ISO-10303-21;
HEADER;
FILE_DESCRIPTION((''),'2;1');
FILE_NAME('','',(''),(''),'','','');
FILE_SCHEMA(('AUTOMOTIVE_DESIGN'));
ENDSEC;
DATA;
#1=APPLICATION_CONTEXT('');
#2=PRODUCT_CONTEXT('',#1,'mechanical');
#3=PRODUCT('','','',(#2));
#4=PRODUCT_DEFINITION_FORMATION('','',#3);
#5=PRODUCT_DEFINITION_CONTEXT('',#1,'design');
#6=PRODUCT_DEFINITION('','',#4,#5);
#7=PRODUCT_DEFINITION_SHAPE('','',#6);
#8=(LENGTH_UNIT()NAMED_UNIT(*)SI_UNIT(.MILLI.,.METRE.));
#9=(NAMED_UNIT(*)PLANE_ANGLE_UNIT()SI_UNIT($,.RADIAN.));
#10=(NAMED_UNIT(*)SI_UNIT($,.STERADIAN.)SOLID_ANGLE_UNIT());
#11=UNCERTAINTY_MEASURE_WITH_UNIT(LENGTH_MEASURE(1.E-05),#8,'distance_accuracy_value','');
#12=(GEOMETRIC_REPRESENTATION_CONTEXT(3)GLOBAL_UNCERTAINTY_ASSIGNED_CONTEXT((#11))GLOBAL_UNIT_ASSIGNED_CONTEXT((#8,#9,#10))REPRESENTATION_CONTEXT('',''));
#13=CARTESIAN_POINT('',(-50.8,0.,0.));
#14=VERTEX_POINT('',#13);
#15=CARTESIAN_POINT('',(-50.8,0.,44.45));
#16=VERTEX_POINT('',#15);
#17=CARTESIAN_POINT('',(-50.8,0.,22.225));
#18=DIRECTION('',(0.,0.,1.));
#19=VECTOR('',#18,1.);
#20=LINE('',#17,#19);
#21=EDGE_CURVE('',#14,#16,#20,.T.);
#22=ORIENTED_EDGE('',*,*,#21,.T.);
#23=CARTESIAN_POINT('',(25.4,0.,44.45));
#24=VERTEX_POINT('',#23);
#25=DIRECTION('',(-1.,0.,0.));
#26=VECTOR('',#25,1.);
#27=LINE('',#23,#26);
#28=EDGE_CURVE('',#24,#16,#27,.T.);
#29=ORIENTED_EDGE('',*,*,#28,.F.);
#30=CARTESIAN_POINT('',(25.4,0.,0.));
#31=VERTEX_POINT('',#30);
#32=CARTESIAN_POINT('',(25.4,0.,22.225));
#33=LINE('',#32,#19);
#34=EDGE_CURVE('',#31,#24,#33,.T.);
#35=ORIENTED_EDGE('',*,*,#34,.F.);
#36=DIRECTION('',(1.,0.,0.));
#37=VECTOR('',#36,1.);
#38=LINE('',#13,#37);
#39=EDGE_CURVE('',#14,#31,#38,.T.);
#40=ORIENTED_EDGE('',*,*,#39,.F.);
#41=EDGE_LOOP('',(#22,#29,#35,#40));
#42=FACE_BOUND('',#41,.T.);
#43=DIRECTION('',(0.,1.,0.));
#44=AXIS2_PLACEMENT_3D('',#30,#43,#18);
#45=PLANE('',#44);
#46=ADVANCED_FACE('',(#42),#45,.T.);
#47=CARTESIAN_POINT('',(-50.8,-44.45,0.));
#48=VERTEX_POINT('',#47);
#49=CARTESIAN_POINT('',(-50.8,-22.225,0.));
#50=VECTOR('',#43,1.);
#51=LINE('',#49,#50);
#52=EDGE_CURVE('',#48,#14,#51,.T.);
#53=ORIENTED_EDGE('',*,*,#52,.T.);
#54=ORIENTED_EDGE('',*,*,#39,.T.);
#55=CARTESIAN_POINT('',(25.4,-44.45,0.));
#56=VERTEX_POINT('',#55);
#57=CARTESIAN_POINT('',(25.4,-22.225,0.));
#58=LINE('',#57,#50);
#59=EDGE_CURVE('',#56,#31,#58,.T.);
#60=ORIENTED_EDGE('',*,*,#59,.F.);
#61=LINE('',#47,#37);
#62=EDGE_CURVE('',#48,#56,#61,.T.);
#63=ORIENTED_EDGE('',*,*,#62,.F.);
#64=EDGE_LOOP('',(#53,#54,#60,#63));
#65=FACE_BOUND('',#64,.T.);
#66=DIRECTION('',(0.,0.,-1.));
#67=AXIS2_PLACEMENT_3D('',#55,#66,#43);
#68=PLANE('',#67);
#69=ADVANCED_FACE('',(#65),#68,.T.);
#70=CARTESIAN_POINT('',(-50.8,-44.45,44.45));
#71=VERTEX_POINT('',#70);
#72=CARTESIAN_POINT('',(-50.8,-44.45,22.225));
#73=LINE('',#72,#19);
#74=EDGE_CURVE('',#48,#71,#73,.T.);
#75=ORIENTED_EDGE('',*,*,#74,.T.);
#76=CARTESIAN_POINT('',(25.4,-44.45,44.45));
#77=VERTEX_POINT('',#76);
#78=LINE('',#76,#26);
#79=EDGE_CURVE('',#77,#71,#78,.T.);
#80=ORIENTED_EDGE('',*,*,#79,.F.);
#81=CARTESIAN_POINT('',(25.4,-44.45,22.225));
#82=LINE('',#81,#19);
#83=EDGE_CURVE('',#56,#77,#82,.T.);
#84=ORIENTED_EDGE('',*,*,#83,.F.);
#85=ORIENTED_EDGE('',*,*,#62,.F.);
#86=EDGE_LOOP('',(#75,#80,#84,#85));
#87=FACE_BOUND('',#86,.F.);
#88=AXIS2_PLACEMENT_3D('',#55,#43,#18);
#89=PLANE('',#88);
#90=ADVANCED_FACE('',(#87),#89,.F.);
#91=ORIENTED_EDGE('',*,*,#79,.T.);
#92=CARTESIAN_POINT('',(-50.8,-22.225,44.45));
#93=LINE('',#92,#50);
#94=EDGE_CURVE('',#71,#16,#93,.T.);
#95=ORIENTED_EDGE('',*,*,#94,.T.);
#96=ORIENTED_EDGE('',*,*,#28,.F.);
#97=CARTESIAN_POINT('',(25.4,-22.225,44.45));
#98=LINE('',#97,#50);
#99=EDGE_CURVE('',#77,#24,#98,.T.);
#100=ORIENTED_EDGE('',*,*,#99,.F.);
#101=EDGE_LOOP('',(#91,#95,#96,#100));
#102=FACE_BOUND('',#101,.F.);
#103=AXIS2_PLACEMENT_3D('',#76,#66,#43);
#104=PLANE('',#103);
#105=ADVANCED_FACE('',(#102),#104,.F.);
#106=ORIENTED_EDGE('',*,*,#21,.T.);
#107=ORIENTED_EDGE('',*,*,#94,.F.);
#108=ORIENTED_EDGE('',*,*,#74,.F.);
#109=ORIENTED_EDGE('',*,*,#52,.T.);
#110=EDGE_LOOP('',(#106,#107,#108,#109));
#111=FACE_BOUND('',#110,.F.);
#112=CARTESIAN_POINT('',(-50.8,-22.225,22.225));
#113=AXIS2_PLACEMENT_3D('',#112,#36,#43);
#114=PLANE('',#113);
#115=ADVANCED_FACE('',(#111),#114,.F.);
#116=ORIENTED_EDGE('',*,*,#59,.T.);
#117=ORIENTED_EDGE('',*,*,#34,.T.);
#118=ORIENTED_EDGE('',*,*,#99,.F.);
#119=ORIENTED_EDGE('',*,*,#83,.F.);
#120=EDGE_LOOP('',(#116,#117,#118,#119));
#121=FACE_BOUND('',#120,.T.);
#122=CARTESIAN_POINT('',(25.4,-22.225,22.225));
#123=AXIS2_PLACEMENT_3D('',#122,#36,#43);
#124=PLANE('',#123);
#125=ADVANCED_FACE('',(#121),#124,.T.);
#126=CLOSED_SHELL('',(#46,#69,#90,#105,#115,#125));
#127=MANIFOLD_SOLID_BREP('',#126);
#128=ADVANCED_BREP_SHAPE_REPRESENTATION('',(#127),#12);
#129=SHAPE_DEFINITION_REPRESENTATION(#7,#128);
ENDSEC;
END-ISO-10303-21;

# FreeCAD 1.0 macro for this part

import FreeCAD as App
import Part
import Sketcher

V = App.Vector
Q = App.Units.Quantity


def add_polygon(sketch, points):
    """Adds a closed chain of lines whose ends are joined by coincident constraints."""
    first, n = sketch.GeometryCount, len(points)
    for a, b in zip(points, points[1:] + points[:1]):
        sketch.addGeometry(Part.LineSegment(App.Vector(*a, 0), App.Vector(*b, 0)), False)
    for i in range(n):
        sketch.addConstraint(Sketcher.Constraint("Coincident", first + i, 2, first + (i + 1) % n, 1))

doc = App.newDocument("Part")
params = doc.addObject("Spreadsheet::Sheet", "Params")
for row, (alias, value) in enumerate([
    ("sketch1_width", "1.75 in"),
    ("pad1_length", "1 in"),
    ("sketch2_width", "1.75 in"),
    ("pad2_length", "1 in"),
    ("sketch3_width", "1.75 in"),
    ("pad3_length", "3 in"),
], start=1):
    params.set(f"A{row}", alias)
    params.set(f"B{row}", "=" + value)
    params.setAlias(f"B{row}", alias)

body = doc.addObject("PartDesign::Body", "Body")

# Sketch on YZ plane
sketch1 = body.newObject("Sketcher::SketchObject", "Sketch")
sketch1.AttachmentSupport = (doc.getObject("YZ_Plane"), [""])
sketch1.MapMode = "FlatFace"
add_polygon(sketch1, [(-44, 44), (-44, 0), (0, 0), (0, 44)])  # lines 0-3
sketch1.addConstraint([
    Sketcher.Constraint("Vertical", 0),
    Sketcher.Constraint("Horizontal", 1),
    Sketcher.Constraint("Vertical", 2),
    Sketcher.Constraint("Horizontal", 3),
    Sketcher.Constraint("Coincident", 1, 2, -1, 1),
    Sketcher.Constraint("Equal", 3, 0),
    Sketcher.Constraint("DistanceX", 1, 1, 1, 2, Q("1.75 in")),
])
sketch1.setExpression("Constraints[10]", "Params.sketch1_width")
pad1 = body.newObject("PartDesign::Pad", "Pad")
pad1.Profile = sketch1
pad1.setExpression("Length", "Params.pad1_length")

# Sketch on YZ plane
sketch2 = body.newObject("Sketcher::SketchObject", "Sketch001")
sketch2.AttachmentSupport = (doc.getObject("YZ_Plane"), [""])
sketch2.MapMode = "FlatFace"
add_polygon(sketch2, [(-44, 44), (-44, 0), (0, 0), (0, 44)])  # lines 0-3
sketch2.addConstraint([
    Sketcher.Constraint("Vertical", 0),
    Sketcher.Constraint("Horizontal", 1),
    Sketcher.Constraint("Vertical", 2),
    Sketcher.Constraint("Horizontal", 3),
    Sketcher.Constraint("Coincident", 1, 2, -1, 1),
    Sketcher.Constraint("Equal", 3, 0),
    Sketcher.Constraint("DistanceX", 1, 1, 1, 2, Q("1.75 in")),
])
sketch2.setExpression("Constraints[10]", "Params.sketch2_width")
pad2 = body.newObject("PartDesign::Pad", "Pad001")
pad2.Profile = sketch2
pad2.setExpression("Length", "Params.pad2_length")

# Sketch on YZ plane
sketch3 = body.newObject("Sketcher::SketchObject", "Sketch002")
sketch3.AttachmentSupport = (doc.getObject("YZ_Plane"), [""])
sketch3.MapMode = "FlatFace"
sketch3.AttachmentOffset = App.Placement(V(0, 0, 1 * 25.4), App.Rotation())
add_polygon(sketch3, [(-44, 44), (-44, 0), (0, 0), (0, 44)])  # lines 0-3
sketch3.addConstraint([
    Sketcher.Constraint("Vertical", 0),
    Sketcher.Constraint("Horizontal", 1),
    Sketcher.Constraint("Vertical", 2),
    Sketcher.Constraint("Horizontal", 3),
    Sketcher.Constraint("Coincident", 1, 2, -1, 1),
    Sketcher.Constraint("Equal", 3, 0),
    Sketcher.Constraint("DistanceX", 1, 1, 1, 2, Q("1.75 in")),
])
sketch3.setExpression("Constraints[10]", "Params.sketch3_width")
pad3 = body.newObject("PartDesign::Pad", "Pad002")
pad3.Profile = sketch3
pad3.setExpression("Length", "Params.pad3_length")
pad3.Reversed = True

doc.recompute()
